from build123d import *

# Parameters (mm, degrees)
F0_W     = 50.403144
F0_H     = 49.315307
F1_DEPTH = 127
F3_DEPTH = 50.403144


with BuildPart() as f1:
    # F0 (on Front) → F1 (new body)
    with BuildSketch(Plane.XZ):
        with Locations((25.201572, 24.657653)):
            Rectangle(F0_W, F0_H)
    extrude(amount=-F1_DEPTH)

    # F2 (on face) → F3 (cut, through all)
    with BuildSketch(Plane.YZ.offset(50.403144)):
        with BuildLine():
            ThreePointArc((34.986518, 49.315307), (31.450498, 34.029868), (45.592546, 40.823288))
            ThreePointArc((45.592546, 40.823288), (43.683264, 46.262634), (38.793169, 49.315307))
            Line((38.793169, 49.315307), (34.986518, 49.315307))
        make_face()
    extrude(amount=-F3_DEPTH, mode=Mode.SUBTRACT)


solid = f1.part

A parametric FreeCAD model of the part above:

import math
import FreeCAD as App
import Part
import Sketcher
from FreeCAD import Vector
Q = App.Units.Quantity


def add_polygon(sketch, points):
    """Adds a closed chain of lines whose ends are joined by coincident constraints."""
    first, n = sketch.GeometryCount, len(points)
    for a, b in zip(points, points[1:] + points[:1]):
        sketch.addGeometry(Part.LineSegment(App.Vector(*a, 0), App.Vector(*b, 0)), False)
    for i in range(n):
        sketch.addConstraint(Sketcher.Constraint("Coincident", first + i, 2, first + (i + 1) % n, 1))

doc = App.newDocument("Part")
body = doc.addObject("PartDesign::Body", "Body")

# Sketch on XZ plane
sketch1 = doc.addObject("Sketcher::SketchObject", "Sketch")
body.addObject(sketch1)
sketch1.AttachmentSupport = (doc.XZ_Plane, [""])
sketch1.MapMode = "FlatFace"
add_polygon(sketch1, [(0, 49), (0, 0), (50, 0), (50, 49)])  # lines 0-3
sketch1.addConstraint(Sketcher.Constraint("Vertical", 0))
sketch1.addConstraint(Sketcher.Constraint("Horizontal", 1))
sketch1.addConstraint(Sketcher.Constraint("Vertical", 2))
sketch1.addConstraint(Sketcher.Constraint("Horizontal", 3))
sketch1.addConstraint(Sketcher.Constraint("Coincident", 0, 2, -1, 1))
sketch1.addConstraint(Sketcher.Constraint("DistanceX", 1, 1, 1, 2, 50.403144))
sketch1.addConstraint(Sketcher.Constraint("DistanceY", 0, 2, 0, 1, 49.315307))
pad1 = doc.addObject("PartDesign::Pad", "Pad")
body.addObject(pad1)
pad1.Profile = sketch1
pad1.Length = Q("5 in")
pad1.Reversed = True

# Sketch on YZ plane
sketch2 = doc.addObject("Sketcher::SketchObject", "Sketch001")
body.addObject(sketch2)
sketch2.AttachmentSupport = (doc.YZ_Plane, [""])
sketch2.MapMode = "FlatFace"
sketch2.AttachmentOffset = App.Placement(Vector(0, 0, 50.403144), App.Rotation())
sketch2.addGeometry(Part.ArcOfCircle(Part.Circle(Vector(36.9, 40.8, 0), Vector(0, 0, 1), 8.7), math.radians(103), math.radians(360)), False)
sketch2.addGeometry(Part.ArcOfCircle(Part.Circle(Vector(36.9, 40.8, 0), Vector(0, 0, 1), 8.7), math.radians(0), math.radians(77)), False)
sketch2.addGeometry(Part.LineSegment(Vector(38.8, 49.3, 0), Vector(35, 49.3, 0)), False)
sketch2.addConstraint(Sketcher.Constraint("Tangent", 0, 2, 1, 1))
sketch2.addConstraint(Sketcher.Constraint("Coincident", 1, 2, 2, 1))
sketch2.addConstraint(Sketcher.Constraint("Coincident", 2, 2, 0, 1))
sketch2.addConstraint(Sketcher.Constraint("Horizontal", 2))
sketch2.addConstraint(Sketcher.Constraint("Radius", 1, 8.7027))
sketch2.addConstraint(Sketcher.Constraint("Radius", 0, 8.702703))
sketch2.addConstraint(Sketcher.Constraint("DistanceX", 2, 2, 2, 1, 3.806651))
sketch2.addConstraint(Sketcher.Constraint("DistanceY", -1, 1, 0, 3, 40.823288))
sketch2.addConstraint(Sketcher.Constraint("DistanceX", -1, 1, 1, 2, 38.793169))
sketch2.addConstraint(Sketcher.Constraint("DistanceY", 0, 2, 1, 2, 8.492019))
pocket1 = doc.addObject("PartDesign::Pocket", "Pocket")
body.addObject(pocket1)
pocket1.Profile = sketch2
pocket1.Type = "ThroughAll"

doc.recompute()
